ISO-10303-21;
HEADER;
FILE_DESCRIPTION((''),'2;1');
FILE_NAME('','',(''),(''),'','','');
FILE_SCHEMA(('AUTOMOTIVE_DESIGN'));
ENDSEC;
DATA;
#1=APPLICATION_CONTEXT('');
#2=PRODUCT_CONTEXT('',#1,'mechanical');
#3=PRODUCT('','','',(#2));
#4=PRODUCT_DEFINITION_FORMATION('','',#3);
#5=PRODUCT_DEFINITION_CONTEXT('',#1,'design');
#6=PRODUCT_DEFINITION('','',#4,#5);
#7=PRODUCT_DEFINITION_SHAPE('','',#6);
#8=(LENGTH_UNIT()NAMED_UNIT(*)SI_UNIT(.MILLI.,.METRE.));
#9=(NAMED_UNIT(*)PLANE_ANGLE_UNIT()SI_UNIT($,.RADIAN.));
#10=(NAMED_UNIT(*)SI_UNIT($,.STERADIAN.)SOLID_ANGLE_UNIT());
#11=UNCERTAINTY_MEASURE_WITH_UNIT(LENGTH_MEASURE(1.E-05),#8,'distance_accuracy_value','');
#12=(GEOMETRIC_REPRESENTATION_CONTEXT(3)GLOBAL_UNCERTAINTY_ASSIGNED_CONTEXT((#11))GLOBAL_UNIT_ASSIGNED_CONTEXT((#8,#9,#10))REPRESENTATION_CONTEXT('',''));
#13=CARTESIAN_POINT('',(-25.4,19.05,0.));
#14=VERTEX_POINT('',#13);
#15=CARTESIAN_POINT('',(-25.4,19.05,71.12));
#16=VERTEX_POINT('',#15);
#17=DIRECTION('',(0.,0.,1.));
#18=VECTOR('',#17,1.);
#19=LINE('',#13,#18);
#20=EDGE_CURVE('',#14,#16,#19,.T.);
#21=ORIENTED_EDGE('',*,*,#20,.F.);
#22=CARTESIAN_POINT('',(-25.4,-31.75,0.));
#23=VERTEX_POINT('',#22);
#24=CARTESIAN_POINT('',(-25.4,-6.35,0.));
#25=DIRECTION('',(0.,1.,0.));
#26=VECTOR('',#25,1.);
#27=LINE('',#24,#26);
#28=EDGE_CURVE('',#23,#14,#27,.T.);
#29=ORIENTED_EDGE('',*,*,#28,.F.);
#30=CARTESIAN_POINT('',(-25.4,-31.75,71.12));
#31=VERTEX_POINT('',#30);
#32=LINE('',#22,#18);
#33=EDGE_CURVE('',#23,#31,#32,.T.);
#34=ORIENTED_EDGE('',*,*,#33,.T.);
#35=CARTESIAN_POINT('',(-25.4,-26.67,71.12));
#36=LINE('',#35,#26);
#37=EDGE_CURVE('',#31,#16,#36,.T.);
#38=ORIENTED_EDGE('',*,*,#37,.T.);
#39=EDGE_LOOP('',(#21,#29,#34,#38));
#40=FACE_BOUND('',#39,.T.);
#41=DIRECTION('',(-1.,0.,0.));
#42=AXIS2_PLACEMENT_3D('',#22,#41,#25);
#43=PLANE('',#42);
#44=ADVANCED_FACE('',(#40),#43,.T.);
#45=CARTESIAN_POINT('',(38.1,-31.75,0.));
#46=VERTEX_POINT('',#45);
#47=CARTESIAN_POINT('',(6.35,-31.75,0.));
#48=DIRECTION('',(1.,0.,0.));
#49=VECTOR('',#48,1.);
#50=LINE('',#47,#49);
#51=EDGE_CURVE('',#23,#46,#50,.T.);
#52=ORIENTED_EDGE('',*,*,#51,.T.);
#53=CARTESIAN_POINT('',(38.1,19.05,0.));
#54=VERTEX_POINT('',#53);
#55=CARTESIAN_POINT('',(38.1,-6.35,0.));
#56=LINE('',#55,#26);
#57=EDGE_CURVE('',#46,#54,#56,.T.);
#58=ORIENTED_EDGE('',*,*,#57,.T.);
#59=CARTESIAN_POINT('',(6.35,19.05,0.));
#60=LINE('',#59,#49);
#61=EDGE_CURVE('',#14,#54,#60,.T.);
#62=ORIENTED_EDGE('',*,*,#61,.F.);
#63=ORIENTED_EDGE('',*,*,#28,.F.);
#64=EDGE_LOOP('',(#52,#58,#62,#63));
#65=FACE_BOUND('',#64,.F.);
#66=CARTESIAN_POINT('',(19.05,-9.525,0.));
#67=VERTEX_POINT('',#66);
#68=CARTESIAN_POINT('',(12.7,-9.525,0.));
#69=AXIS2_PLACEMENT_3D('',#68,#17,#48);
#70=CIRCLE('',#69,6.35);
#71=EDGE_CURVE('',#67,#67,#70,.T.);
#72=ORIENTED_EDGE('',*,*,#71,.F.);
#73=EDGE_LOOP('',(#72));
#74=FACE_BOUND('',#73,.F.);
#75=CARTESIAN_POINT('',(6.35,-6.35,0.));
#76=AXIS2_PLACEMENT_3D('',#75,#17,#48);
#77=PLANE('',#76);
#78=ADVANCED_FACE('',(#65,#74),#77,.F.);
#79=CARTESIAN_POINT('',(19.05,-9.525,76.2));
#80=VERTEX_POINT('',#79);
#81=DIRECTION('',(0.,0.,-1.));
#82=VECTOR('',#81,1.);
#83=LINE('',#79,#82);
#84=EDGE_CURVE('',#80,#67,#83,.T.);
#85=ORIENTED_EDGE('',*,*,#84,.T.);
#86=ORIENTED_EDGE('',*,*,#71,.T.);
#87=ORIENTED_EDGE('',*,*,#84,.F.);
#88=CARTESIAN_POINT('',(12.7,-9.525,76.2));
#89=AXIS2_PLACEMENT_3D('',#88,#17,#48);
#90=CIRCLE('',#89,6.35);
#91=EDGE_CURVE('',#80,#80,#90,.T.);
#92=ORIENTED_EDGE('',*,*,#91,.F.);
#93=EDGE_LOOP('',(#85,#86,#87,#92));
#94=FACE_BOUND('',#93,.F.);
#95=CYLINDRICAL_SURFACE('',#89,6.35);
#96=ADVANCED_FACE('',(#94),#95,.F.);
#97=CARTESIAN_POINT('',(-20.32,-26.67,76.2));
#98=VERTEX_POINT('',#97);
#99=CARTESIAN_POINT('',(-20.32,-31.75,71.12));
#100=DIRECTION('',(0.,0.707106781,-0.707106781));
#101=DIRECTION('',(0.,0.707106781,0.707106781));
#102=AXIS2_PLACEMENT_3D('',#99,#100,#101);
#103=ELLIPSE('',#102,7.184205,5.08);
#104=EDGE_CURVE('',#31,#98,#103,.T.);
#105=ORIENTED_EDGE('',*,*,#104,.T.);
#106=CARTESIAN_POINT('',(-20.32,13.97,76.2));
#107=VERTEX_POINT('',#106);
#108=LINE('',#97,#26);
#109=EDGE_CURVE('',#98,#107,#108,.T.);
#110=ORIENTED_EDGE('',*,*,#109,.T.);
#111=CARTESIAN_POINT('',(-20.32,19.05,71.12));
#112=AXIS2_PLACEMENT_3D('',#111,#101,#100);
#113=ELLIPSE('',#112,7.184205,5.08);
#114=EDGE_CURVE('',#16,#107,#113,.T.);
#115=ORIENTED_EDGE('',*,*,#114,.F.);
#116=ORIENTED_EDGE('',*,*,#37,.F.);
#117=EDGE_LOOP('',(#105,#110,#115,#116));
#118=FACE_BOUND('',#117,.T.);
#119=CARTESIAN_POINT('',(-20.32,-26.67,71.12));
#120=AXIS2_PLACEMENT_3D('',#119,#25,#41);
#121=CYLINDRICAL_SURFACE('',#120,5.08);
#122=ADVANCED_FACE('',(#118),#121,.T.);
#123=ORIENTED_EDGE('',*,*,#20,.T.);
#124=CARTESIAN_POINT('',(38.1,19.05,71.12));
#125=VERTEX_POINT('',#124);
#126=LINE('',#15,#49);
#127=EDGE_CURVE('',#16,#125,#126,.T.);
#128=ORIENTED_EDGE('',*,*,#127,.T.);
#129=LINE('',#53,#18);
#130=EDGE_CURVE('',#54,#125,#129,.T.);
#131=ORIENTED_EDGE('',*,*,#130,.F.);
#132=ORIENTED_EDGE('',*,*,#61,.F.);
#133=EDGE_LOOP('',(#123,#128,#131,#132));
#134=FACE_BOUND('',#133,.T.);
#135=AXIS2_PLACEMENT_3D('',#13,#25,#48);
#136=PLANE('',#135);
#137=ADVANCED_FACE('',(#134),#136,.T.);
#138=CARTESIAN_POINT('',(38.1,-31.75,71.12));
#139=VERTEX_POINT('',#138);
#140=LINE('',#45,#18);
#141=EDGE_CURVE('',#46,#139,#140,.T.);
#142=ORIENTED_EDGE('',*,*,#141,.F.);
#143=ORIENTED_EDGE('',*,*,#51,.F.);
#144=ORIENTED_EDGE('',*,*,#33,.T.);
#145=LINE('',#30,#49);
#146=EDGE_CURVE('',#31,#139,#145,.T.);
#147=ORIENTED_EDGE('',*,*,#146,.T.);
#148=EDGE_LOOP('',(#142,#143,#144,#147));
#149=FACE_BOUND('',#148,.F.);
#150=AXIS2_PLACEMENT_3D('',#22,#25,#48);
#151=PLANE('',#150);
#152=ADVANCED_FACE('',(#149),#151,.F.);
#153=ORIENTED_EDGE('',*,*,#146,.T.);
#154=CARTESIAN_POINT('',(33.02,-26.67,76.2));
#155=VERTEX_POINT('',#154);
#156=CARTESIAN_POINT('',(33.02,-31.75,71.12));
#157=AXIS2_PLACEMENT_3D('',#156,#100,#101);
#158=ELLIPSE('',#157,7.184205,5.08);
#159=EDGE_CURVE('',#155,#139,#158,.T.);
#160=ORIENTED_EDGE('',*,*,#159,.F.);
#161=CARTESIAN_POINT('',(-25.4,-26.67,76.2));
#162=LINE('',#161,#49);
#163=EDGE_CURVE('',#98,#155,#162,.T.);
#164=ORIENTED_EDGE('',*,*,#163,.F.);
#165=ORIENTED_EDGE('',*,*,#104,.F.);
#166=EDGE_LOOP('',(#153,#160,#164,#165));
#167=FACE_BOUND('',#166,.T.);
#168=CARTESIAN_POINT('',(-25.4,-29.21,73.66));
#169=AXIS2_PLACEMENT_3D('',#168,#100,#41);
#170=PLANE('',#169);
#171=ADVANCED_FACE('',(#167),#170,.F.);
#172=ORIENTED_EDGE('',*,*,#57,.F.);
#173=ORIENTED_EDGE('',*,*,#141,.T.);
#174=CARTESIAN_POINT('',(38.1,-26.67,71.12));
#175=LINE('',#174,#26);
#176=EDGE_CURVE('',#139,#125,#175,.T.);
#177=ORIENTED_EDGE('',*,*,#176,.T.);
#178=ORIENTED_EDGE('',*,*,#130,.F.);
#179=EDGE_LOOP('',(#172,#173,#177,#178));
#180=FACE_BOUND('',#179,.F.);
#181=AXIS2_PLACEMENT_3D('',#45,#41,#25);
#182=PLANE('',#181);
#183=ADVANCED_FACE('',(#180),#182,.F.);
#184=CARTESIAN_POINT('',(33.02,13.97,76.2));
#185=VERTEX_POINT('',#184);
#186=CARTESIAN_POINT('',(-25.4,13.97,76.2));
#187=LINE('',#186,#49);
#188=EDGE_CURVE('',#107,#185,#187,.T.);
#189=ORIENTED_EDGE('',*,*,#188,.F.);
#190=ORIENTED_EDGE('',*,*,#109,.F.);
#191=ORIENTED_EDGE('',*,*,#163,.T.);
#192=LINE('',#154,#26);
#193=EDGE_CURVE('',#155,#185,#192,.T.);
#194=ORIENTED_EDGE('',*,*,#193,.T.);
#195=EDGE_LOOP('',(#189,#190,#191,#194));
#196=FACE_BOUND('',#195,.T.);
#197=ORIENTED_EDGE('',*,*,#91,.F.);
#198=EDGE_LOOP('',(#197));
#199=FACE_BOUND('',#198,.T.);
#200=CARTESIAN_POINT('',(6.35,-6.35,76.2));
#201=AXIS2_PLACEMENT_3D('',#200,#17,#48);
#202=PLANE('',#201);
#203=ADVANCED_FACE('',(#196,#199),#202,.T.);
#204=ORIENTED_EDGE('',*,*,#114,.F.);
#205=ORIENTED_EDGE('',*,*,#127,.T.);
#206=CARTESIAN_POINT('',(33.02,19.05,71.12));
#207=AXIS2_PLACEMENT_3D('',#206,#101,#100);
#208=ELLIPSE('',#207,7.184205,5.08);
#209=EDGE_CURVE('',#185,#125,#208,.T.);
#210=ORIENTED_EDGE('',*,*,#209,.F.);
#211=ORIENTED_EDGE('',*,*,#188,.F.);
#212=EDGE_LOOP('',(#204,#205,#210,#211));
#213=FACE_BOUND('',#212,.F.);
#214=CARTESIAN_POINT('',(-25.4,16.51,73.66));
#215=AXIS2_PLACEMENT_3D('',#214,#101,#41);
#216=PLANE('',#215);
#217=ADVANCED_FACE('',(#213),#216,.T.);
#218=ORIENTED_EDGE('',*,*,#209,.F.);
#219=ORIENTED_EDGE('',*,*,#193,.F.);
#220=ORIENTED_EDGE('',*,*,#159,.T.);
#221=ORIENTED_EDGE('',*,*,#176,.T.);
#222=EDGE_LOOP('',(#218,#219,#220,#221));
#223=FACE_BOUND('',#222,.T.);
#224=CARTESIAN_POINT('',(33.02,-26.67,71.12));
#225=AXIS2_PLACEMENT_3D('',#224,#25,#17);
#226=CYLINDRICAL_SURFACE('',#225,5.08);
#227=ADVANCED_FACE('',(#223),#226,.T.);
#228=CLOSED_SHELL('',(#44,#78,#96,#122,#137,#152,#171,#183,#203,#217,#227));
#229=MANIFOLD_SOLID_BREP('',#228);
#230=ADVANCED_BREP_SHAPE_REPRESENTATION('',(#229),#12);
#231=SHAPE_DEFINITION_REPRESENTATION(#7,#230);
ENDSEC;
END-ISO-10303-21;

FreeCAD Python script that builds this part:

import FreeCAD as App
import Part
import Sketcher
from FreeCAD import Vector
Q = App.Units.Quantity


def edges_at(feature, points):
    """Names of the edges that pass closest to the given points."""
    edges = feature.Shape.Edges
    near = lambda p: min(range(len(edges)), key=lambda i: edges[i].distToShape(Part.Vertex(*p))[0])
    return sorted({f"Edge{near(p) + 1}" for p in points})


def add_polygon(sketch, points):
    """Adds a closed chain of lines whose ends are joined by coincident constraints."""
    first, n = sketch.GeometryCount, len(points)
    for a, b in zip(points, points[1:] + points[:1]):
        sketch.addGeometry(Part.LineSegment(App.Vector(*a, 0), App.Vector(*b, 0)), False)
    for i in range(n):
        sketch.addConstraint(Sketcher.Constraint("Coincident", first + i, 2, first + (i + 1) % n, 1))

doc = App.newDocument("Part")
body = doc.addObject("PartDesign::Body", "Body")

sketch1 = body.newObject("Sketcher::SketchObject", "Sketch")
sketch1.AttachmentSupport = (doc.getObject("XY_Plane"), [""])
sketch1.MapMode = "FlatFace"
add_polygon(sketch1, [(-25.4, 19.05), (-25.4, -31.75), (38.1, -31.75), (38.1, 19.05)])
sketch1.addConstraint([
    Sketcher.Constraint("Vertical", 0),
    Sketcher.Constraint("Horizontal", 1),
    Sketcher.Constraint("Vertical", 2),
    Sketcher.Constraint("Horizontal", 3),
    Sketcher.Constraint("DistanceY", 0, 2, 0, 1, Q("2 in")),
    Sketcher.Constraint("DistanceX", 1, 1, 1, 2, Q("2.5 in")),
    Sketcher.Constraint("DistanceX", 0, 2, -1, 1, Q("1 in")),
    Sketcher.Constraint("DistanceY", 0, 2, -1, 1, Q("1.25 in")),
])
pad1 = body.newObject("PartDesign::Pad", "Pad")
pad1.Profile = sketch1
pad1.Length = Q("3 in")

sketch2 = body.newObject("Sketcher::SketchObject", "Sketch001")
sketch2.AttachmentSupport = (doc.getObject("XY_Plane"), [""])
sketch2.MapMode = "FlatFace"
sketch2.AttachmentOffset = App.Placement(Vector(0, 0, 3 * 25.4), App.Rotation())
sketch2.addGeometry(Part.Circle(Vector(12.7, -9.525, 0), Vector(0, 0, 1), 6.35), False)
sketch2.addConstraint([
    Sketcher.Constraint("Diameter", 0, Q("0.5 in")),
    Sketcher.Constraint("DistanceX", -1, 1, 0, 3, Q("0.5 in")),
    Sketcher.Constraint("DistanceY", 0, 3, -1, 1, Q("0.375 in")),
])
pocket1 = body.newObject("PartDesign::Pocket", "Pocket")
pocket1.Profile = sketch2
pocket1.Type = "ThroughAll"
doc.recompute()

chamfer = body.newObject("PartDesign::Chamfer", "Chamfer")
chamfer.Base = (pocket1, edges_at(pocket1, [(6.35, 19.05, 76.2), (6.35, -31.75, 76.2)]))
chamfer.Size = Q("0.2 in")
doc.recompute()

fillet = body.newObject("PartDesign::Fillet", "Fillet")
fillet.Base = (chamfer, edges_at(chamfer, [(-25.4, -6.35, 76.2), (38.1, -6.35, 76.2)]))
fillet.Radius = Q("0.2 in")

doc.recompute()
